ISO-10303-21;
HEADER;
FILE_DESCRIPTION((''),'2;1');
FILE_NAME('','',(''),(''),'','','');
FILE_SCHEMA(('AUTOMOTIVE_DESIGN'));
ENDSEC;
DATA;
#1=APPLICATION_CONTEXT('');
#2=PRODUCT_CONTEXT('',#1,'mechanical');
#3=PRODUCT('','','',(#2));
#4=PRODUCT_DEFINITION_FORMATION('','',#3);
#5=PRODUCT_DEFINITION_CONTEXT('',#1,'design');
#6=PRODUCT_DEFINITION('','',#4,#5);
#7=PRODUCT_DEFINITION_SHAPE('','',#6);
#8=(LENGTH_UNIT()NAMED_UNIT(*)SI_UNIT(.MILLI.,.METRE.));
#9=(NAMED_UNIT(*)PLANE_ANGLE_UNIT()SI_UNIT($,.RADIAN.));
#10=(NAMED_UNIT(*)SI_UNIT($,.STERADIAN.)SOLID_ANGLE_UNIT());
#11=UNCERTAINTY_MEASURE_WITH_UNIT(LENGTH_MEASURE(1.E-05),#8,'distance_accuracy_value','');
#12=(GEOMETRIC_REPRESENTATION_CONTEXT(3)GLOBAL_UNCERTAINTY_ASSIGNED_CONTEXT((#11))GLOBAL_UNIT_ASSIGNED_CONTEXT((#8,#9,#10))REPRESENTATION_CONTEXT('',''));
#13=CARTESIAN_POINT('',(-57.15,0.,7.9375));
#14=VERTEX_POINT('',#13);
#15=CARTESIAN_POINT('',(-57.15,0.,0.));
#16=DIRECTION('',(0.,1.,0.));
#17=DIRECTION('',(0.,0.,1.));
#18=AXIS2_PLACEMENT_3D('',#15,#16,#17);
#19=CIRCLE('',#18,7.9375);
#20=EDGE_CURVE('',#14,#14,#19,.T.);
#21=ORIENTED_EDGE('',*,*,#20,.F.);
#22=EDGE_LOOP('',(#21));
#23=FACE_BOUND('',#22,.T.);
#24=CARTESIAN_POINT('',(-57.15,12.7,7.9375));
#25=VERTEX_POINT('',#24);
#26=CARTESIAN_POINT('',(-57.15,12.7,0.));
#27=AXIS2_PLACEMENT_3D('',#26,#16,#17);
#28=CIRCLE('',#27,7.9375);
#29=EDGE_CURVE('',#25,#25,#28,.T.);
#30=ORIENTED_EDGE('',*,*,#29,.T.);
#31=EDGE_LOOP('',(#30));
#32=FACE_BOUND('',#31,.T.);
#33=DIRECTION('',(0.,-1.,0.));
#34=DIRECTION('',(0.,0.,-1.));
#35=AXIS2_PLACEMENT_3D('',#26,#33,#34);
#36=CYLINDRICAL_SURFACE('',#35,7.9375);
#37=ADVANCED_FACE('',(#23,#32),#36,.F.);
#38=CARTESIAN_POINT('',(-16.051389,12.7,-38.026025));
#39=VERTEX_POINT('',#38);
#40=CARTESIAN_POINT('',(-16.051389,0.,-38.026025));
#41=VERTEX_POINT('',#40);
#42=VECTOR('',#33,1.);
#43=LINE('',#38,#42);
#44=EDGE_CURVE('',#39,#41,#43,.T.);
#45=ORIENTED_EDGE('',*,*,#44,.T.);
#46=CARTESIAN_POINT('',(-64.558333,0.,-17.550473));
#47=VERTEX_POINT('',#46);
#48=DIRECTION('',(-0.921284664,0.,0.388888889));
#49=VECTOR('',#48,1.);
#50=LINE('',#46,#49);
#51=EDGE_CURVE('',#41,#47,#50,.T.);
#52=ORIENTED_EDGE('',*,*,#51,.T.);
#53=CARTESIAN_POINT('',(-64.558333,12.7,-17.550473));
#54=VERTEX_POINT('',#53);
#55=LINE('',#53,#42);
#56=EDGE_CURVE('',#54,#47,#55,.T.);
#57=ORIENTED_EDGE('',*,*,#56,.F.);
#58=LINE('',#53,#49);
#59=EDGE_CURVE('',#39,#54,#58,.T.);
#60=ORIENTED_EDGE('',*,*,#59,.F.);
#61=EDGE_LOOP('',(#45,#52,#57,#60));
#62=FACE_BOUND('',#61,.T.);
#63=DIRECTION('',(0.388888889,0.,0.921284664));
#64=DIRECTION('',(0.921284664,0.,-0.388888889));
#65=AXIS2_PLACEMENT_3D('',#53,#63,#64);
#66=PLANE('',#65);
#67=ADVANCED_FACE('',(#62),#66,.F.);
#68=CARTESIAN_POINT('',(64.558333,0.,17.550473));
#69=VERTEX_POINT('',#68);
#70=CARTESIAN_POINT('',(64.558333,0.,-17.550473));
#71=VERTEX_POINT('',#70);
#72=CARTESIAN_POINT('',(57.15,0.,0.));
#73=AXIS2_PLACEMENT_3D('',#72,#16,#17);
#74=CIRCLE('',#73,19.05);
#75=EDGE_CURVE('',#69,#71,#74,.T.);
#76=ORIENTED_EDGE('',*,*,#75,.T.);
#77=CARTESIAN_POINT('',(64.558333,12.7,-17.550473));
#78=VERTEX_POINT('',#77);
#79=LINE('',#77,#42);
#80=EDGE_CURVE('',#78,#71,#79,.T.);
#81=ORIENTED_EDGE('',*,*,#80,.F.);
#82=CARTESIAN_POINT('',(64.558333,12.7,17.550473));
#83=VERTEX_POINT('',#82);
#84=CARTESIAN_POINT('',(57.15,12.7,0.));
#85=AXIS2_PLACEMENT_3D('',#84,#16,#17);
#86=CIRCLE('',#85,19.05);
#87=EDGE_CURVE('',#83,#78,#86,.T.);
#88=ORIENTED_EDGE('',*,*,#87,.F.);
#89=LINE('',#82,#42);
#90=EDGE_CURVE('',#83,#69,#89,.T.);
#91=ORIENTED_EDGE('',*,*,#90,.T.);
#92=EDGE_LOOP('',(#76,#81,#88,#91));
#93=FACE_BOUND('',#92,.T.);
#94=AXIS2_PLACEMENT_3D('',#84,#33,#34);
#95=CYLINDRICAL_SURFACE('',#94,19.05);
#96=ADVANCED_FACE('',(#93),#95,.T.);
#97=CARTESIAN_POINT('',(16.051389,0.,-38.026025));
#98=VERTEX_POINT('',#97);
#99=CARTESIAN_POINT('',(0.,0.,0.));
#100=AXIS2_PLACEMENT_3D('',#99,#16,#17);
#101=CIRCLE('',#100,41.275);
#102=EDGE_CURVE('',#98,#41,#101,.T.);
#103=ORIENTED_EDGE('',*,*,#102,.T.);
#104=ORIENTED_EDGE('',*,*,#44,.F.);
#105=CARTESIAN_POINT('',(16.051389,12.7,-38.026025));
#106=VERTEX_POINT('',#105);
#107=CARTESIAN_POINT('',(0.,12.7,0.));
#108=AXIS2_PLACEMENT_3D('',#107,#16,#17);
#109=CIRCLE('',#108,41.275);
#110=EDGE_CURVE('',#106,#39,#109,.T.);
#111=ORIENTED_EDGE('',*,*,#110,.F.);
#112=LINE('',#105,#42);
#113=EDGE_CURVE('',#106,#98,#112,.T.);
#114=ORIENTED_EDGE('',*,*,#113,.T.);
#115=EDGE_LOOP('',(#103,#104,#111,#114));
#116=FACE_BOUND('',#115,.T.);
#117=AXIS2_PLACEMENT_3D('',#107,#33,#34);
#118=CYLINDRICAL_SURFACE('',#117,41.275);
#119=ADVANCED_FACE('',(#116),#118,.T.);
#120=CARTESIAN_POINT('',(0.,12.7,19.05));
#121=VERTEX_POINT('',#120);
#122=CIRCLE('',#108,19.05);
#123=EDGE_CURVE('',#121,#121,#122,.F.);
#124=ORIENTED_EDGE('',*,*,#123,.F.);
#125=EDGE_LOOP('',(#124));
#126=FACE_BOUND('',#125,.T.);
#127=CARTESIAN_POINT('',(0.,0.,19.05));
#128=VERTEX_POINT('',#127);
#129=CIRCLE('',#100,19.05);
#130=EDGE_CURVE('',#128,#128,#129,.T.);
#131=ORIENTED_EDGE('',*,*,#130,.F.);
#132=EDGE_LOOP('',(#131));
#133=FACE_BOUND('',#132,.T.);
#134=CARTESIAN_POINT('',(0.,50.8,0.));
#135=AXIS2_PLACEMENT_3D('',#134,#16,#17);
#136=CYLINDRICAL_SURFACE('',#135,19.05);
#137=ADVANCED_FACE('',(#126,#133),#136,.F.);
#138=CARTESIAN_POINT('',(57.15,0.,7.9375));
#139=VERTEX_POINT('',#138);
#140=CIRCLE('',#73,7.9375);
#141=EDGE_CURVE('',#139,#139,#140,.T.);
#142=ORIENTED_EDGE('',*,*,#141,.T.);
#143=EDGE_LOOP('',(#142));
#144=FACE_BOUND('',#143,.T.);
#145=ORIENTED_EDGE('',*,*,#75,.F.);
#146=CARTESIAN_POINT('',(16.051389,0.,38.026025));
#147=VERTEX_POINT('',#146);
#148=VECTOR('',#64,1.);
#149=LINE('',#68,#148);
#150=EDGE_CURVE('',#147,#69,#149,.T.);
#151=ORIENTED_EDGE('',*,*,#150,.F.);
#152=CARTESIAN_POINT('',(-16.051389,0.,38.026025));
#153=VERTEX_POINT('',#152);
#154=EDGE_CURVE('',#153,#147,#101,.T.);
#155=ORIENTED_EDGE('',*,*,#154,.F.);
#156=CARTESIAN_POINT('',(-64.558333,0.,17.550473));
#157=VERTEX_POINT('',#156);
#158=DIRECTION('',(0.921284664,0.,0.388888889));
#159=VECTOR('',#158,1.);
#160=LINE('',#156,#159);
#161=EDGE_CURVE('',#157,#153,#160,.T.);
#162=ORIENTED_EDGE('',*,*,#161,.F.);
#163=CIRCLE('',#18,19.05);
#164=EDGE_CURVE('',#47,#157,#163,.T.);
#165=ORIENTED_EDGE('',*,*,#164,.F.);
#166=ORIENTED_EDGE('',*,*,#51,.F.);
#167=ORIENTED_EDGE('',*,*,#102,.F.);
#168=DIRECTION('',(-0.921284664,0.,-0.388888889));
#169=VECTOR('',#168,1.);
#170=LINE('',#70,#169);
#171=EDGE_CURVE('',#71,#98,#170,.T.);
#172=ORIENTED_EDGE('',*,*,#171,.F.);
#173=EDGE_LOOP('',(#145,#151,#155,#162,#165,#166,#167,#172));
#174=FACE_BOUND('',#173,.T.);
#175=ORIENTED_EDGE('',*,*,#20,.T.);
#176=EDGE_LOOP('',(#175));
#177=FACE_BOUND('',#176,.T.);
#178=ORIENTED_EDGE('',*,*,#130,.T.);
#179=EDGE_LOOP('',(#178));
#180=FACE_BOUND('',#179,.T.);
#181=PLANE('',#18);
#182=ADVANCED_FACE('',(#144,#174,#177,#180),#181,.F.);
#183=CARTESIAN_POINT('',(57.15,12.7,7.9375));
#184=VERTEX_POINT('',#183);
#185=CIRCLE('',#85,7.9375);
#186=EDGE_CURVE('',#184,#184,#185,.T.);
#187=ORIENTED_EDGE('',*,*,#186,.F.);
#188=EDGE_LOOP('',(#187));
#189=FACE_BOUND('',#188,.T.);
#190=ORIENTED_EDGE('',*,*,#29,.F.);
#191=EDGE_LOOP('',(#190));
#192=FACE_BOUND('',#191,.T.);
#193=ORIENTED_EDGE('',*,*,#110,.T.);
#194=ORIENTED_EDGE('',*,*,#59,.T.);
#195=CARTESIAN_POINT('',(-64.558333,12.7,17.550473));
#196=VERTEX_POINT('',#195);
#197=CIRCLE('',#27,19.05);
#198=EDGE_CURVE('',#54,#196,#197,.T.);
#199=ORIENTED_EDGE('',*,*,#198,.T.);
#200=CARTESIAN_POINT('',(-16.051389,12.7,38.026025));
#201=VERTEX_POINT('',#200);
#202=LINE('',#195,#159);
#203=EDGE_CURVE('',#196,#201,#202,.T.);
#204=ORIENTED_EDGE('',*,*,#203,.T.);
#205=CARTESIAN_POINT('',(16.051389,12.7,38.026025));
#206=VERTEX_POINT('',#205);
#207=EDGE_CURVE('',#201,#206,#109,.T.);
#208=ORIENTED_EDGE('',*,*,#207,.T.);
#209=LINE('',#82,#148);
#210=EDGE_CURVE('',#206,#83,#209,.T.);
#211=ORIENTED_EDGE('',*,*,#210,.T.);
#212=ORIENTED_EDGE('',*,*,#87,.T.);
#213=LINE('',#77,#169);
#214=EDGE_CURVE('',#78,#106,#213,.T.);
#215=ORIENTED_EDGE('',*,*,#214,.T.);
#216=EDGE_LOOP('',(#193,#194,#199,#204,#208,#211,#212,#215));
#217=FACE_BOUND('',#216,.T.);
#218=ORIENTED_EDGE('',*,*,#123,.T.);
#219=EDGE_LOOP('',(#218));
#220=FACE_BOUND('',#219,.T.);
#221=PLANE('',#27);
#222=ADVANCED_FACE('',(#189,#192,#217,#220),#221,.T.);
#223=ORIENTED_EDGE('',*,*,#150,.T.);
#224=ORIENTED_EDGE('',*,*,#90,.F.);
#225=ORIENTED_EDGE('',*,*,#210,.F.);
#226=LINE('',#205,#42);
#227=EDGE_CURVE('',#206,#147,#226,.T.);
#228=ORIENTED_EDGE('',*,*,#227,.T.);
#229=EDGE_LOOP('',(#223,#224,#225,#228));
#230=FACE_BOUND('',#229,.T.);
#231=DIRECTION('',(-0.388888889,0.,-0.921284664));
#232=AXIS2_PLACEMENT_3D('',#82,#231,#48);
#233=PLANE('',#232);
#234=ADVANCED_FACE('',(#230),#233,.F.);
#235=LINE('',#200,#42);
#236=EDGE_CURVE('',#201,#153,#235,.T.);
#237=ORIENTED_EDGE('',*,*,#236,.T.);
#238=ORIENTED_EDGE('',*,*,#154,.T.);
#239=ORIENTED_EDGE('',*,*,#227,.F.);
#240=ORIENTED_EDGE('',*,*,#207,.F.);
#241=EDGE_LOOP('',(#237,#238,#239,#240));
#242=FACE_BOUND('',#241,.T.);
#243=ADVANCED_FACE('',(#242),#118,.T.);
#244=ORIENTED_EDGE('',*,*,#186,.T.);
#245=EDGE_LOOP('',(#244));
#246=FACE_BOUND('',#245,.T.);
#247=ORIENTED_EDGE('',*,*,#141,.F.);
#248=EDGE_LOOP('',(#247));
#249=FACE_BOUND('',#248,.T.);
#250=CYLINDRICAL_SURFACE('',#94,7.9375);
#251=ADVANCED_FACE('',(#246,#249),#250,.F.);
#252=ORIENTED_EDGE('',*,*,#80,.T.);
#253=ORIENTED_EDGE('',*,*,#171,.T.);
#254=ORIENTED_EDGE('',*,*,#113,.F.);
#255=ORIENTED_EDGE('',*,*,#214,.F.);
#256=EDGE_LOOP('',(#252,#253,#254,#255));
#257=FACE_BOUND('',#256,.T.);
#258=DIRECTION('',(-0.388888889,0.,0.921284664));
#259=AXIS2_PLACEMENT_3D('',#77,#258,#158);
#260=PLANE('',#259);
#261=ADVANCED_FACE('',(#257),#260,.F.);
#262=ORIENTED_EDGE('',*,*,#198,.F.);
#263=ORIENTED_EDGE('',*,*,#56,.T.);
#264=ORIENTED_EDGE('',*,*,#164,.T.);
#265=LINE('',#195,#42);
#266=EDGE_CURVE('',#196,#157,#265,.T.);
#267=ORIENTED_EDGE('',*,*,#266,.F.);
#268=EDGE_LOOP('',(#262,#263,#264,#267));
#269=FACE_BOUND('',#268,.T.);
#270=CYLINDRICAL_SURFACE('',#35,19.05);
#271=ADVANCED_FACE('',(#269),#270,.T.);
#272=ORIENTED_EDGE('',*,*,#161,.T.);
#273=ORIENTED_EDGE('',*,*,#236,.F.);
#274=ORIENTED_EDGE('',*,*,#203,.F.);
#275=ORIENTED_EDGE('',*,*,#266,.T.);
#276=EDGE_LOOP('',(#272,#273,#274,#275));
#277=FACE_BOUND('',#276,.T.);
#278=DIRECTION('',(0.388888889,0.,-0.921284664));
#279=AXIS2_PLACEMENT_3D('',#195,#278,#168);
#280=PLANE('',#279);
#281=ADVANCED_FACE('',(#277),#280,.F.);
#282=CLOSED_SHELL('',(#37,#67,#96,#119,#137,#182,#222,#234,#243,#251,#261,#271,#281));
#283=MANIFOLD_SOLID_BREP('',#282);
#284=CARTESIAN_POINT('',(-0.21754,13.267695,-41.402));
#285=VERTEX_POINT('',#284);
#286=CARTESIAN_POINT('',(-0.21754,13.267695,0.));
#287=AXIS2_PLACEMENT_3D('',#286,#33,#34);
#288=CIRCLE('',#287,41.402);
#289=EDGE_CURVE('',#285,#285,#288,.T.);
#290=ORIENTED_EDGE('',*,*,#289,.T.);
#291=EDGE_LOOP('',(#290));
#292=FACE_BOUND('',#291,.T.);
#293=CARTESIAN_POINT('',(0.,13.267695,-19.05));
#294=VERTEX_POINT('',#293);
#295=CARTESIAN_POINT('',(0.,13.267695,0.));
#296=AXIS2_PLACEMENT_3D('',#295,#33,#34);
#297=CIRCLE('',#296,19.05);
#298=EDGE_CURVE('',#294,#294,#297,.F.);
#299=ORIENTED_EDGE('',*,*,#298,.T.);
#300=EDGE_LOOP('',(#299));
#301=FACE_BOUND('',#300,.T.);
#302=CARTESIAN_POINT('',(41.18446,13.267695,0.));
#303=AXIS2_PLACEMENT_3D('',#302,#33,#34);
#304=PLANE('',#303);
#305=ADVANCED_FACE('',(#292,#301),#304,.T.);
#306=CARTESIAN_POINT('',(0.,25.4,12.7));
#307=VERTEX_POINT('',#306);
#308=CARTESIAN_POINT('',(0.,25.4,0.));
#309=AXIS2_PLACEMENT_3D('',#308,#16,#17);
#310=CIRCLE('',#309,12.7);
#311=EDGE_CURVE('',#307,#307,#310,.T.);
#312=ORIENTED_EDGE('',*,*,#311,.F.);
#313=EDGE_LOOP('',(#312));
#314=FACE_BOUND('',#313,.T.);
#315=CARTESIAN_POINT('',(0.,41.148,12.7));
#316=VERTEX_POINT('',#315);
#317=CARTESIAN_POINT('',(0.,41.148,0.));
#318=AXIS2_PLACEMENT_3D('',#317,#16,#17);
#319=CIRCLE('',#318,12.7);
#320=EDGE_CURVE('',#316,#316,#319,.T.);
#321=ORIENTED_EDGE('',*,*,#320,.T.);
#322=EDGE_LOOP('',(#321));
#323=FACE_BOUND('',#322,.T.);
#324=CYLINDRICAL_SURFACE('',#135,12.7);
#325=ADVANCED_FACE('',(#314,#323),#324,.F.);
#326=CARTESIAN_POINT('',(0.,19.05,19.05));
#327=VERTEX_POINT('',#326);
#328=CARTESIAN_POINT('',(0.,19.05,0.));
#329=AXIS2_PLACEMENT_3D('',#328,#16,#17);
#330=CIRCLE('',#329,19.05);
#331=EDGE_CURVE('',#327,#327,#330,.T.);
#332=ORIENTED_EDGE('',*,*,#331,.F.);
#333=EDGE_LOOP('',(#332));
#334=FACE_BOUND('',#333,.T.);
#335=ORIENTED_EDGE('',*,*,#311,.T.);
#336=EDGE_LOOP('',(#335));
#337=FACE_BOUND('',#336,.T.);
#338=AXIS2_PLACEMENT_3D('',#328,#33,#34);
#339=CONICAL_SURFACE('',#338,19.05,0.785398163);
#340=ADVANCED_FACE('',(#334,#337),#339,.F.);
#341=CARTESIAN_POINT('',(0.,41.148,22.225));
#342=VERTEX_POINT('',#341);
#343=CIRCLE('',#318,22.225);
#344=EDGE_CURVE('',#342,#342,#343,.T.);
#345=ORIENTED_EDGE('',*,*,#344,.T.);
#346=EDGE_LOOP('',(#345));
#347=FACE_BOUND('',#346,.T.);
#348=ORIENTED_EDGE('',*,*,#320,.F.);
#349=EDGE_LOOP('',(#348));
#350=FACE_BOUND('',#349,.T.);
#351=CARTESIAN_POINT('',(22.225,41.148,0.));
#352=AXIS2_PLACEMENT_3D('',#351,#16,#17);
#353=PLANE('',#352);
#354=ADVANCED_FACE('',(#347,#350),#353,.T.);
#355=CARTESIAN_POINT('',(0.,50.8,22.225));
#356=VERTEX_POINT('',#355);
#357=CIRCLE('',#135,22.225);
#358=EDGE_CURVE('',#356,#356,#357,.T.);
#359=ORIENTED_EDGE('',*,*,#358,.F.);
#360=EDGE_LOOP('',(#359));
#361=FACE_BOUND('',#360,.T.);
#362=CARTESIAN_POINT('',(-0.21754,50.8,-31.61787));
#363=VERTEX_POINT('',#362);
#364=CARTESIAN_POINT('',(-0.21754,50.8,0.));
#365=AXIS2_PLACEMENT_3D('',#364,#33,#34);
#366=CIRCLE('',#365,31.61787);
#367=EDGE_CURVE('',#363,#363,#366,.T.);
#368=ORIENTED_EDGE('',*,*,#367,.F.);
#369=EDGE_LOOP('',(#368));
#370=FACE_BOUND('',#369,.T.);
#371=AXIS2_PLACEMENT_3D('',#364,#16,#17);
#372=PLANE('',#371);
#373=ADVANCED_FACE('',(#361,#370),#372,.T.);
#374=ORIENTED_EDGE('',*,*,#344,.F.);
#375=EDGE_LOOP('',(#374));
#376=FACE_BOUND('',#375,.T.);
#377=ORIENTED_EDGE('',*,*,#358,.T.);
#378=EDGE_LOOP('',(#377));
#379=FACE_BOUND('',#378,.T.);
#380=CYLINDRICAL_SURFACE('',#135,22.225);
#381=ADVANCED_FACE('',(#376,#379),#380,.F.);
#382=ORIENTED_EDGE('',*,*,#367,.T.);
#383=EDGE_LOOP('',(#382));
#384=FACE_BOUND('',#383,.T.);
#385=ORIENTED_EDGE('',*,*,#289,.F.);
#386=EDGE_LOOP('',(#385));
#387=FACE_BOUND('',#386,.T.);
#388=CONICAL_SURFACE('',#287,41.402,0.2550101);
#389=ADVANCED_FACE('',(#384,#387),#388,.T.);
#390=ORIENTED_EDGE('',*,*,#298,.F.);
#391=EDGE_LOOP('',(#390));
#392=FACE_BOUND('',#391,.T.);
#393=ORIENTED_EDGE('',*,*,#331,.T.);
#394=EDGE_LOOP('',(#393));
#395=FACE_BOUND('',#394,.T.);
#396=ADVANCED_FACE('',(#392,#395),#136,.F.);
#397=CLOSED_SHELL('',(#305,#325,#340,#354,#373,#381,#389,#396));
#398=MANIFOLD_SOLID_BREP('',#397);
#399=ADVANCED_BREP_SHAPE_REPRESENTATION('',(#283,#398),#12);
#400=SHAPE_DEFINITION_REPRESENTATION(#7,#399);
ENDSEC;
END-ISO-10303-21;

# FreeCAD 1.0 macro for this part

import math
import FreeCAD as App
import Part
import Sketcher
Q = App.Units.Quantity

doc = App.newDocument("Part")
body = doc.addObject("PartDesign::Body", "Body")

sketch1 = doc.addObject("Sketcher::SketchObject", "Sketch")
body.addObject(sketch1)
sketch1.AttachmentSupport = (doc.XZ_Plane, [""])
sketch1.MapMode = "FlatFace"
sketch1.addGeometry(Part.LineSegment(App.Vector(-16, -38, 0), App.Vector(-65, -18, 0)), False)
sketch1.addGeometry(Part.ArcOfCircle(Part.Circle(App.Vector(-57, 0, 0), App.Vector(0, 0, 1), 19), math.radians(113), math.radians(247)), False)
sketch1.addGeometry(Part.LineSegment(App.Vector(-65, 18, 0), App.Vector(-16, 38, 0)), False)
sketch1.addGeometry(Part.ArcOfCircle(Part.Circle(App.Vector(0, 0, 0), App.Vector(0, 0, 1), 41), math.radians(67), math.radians(113)), False)
sketch1.addGeometry(Part.LineSegment(App.Vector(16, 38, 0), App.Vector(65, 18, 0)), False)
sketch1.addGeometry(Part.ArcOfCircle(Part.Circle(App.Vector(57, 0, 0), App.Vector(0, 0, 1), 19), math.radians(-67), math.radians(67)), False)
sketch1.addGeometry(Part.LineSegment(App.Vector(65, -18, 0), App.Vector(16, -38, 0)), False)
sketch1.addGeometry(Part.ArcOfCircle(Part.Circle(App.Vector(0, 0, 0), App.Vector(0, 0, 1), 41), math.radians(-113), math.radians(-67)), False)
sketch1.addGeometry(Part.Circle(App.Vector(57, 0, 0), App.Vector(0, 0, 1), 8), False)
sketch1.addGeometry(Part.Circle(App.Vector(-57, 0, 0), App.Vector(0, 0, 1), 8), False)
sketch1.addConstraint(Sketcher.Constraint("Tangent", 0, 2, 1, 2))
sketch1.addConstraint(Sketcher.Constraint("Tangent", 1, 1, 2, 1))
sketch1.addConstraint(Sketcher.Constraint("Tangent", 2, 2, 3, 2))
sketch1.addConstraint(Sketcher.Constraint("Tangent", 3, 1, 4, 1))
sketch1.addConstraint(Sketcher.Constraint("Tangent", 4, 2, 5, 2))
sketch1.addConstraint(Sketcher.Constraint("Tangent", 5, 1, 6, 1))
sketch1.addConstraint(Sketcher.Constraint("Tangent", 6, 2, 7, 2))
sketch1.addConstraint(Sketcher.Constraint("Tangent", 7, 1, 0, 1))
sketch1.addConstraint(Sketcher.Constraint("Coincident", 3, 3, -1, 1))
sketch1.addConstraint(Sketcher.Constraint("Coincident", 7, 3, -1, 1))
sketch1.addConstraint(Sketcher.Constraint("Coincident", 8, 3, 5, 3))
sketch1.addConstraint(Sketcher.Constraint("Coincident", 9, 3, 1, 3))
sketch1.addConstraint(Sketcher.Constraint("Equal", 1, 5))
sketch1.addConstraint(Sketcher.Constraint("Equal", 3, 7))
sketch1.addConstraint(Sketcher.Constraint("Equal", 8, 9))
sketch1.addConstraint(Sketcher.Constraint("Symmetric", 1, 3, 5, 3, -1, 1))
sketch1.addConstraint(Sketcher.Constraint("PointOnObject", 1, 3, -1))
sketch1.addConstraint(Sketcher.Constraint("Radius", 1, Q("0.75 in")))
sketch1.addConstraint(Sketcher.Constraint("Diameter", 8, Q("0.625 in")))
sketch1.addConstraint(Sketcher.Constraint("Radius", 3, Q("1.625 in")))
sketch1.addConstraint(Sketcher.Constraint("DistanceX", 1, 3, 5, 3, Q("4.5 in")))
pad1 = doc.addObject("PartDesign::Pad", "Pad")
body.addObject(pad1)
pad1.Profile = sketch1
pad1.Length = Q("0.5 in")
pad1.Reversed = True
body2 = doc.addObject("PartDesign::Body", "Body001")

sketch2 = doc.addObject("Sketcher::SketchObject", "Sketch001")
body2.addObject(sketch2)
sketch2.AttachmentSupport = (doc.getObject("XY_Plane001"), [""])
sketch2.MapMode = "FlatFace"
sketch2.addGeometry(Part.LineSegment(App.Vector(0, 51, 0), App.Vector(0, 13, 0)), False)
sketch2.addGeometry(Part.LineSegment(App.Vector(0, 13, 0), App.Vector(41, 13, 0)), False)
sketch2.addGeometry(Part.LineSegment(App.Vector(41, 13, 0), App.Vector(31, 51, 0)), False)
sketch2.addGeometry(Part.LineSegment(App.Vector(31, 51, 0), App.Vector(0, 51, 0)), False)
sketch2.addGeometry(Part.LineSegment(App.Vector(0, 13, 0), App.Vector(0, 51, 0)), True)
sketch2.addConstraint(Sketcher.Constraint("Coincident", 0, 2, 1, 1))
sketch2.addConstraint(Sketcher.Constraint("Coincident", 1, 2, 2, 1))
sketch2.addConstraint(Sketcher.Constraint("Coincident", 2, 2, 3, 1))
sketch2.addConstraint(Sketcher.Constraint("Coincident", 3, 2, 0, 1))
sketch2.addConstraint(Sketcher.Constraint("Vertical", 0))
sketch2.addConstraint(Sketcher.Constraint("Horizontal", 1))
sketch2.addConstraint(Sketcher.Constraint("Horizontal", 3))
sketch2.addConstraint(Sketcher.Constraint("Vertical", 4))
sketch2.addConstraint(Sketcher.Constraint("Coincident", 4, 1, 0, 2))
sketch2.addConstraint(Sketcher.Constraint("Horizontal", 2, 2, 4, 2))
sketch2.addConstraint(Sketcher.Constraint("DistanceY", -1, 1, 2, 2, Q("2 in")))
sketch2.addConstraint(Sketcher.Constraint("DistanceX", 1, 1, 1, 2, Q("1.63 in")))
sketch2.addConstraint(Sketcher.Constraint("DistanceX", 3, 2, 3, 1, 31.61787))
sketch2.addConstraint(Sketcher.Constraint("DistanceY", 0, 2, 0, 1, 37.532305))
sketch2.addConstraint(Sketcher.Constraint("DistanceX", 0, 2, -1, 1, 0.21754))
revolution = doc.addObject("PartDesign::Revolution", "Revolution")
body2.addObject(revolution)
revolution.Profile = sketch2
revolution.ReferenceAxis = (sketch2, ["Axis0"])
revolution.Angle = 360
body3 = doc.addObject("PartDesign::Body", "Body002")

sketch3 = doc.addObject("Sketcher::SketchObject", "Sketch002")
body3.addObject(sketch3)
sketch3.AttachmentSupport = (doc.getObject("XY_Plane002"), [""])
sketch3.MapMode = "FlatFace"
sketch3.addGeometry(Part.LineSegment(App.Vector(22, 51, 0), App.Vector(0, 51, 0)), False)
sketch3.addGeometry(Part.LineSegment(App.Vector(0, 51, 0), App.Vector(0, 0, 0)), False)
sketch3.addGeometry(Part.LineSegment(App.Vector(0, 0, 0), App.Vector(19, 0, 0)), False)
sketch3.addGeometry(Part.LineSegment(App.Vector(19, 0, 0), App.Vector(19, 19, 0)), False)
sketch3.addGeometry(Part.LineSegment(App.Vector(19, 19, 0), App.Vector(13, 25, 0)), False)
sketch3.addGeometry(Part.LineSegment(App.Vector(13, 25, 0), App.Vector(13, 41, 0)), False)
sketch3.addGeometry(Part.LineSegment(App.Vector(13, 41, 0), App.Vector(22, 41, 0)), False)
sketch3.addGeometry(Part.LineSegment(App.Vector(22, 41, 0), App.Vector(22, 51, 0)), False)
sketch3.addConstraint(Sketcher.Constraint("Coincident", 0, 2, 1, 1))
sketch3.addConstraint(Sketcher.Constraint("Coincident", 1, 2, 2, 1))
sketch3.addConstraint(Sketcher.Constraint("Coincident", 2, 2, 3, 1))
sketch3.addConstraint(Sketcher.Constraint("Coincident", 3, 2, 4, 1))
sketch3.addConstraint(Sketcher.Constraint("Coincident", 4, 2, 5, 1))
sketch3.addConstraint(Sketcher.Constraint("Coincident", 5, 2, 6, 1))
sketch3.addConstraint(Sketcher.Constraint("Coincident", 6, 2, 7, 1))
sketch3.addConstraint(Sketcher.Constraint("Coincident", 7, 2, 0, 1))
sketch3.addConstraint(Sketcher.Constraint("Horizontal", 0))
sketch3.addConstraint(Sketcher.Constraint("Vertical", 1))
sketch3.addConstraint(Sketcher.Constraint("Horizontal", 2))
sketch3.addConstraint(Sketcher.Constraint("Vertical", 3))
sketch3.addConstraint(Sketcher.Constraint("Vertical", 5))
sketch3.addConstraint(Sketcher.Constraint("Horizontal", 6))
sketch3.addConstraint(Sketcher.Constraint("Vertical", 7))
sketch3.addConstraint(Sketcher.Constraint("Coincident", 1, 2, -1, 1))
sketch3.addConstraint(Sketcher.Constraint("Equal", 2, 3))
sketch3.addConstraint(Sketcher.Constraint("DistanceY", 1, 2, 1, 1, Q("2 in")))
sketch3.addConstraint(Sketcher.Constraint("DistanceY", -1, 1, 4, 2, Q("1 in")))
sketch3.addConstraint(Sketcher.Constraint("Angle", 4, Q("135 deg")))
sketch3.addConstraint(Sketcher.Constraint("DistanceX", 2, 1, 2, 2, Q("0.75 in")))
sketch3.addConstraint(Sketcher.Constraint("DistanceY", 5, 1, 5, 2, Q("0.62 in")))
sketch3.addConstraint(Sketcher.Constraint("DistanceX", 0, 2, 0, 1, Q("0.875 in")))
revolution2 = doc.addObject("PartDesign::Revolution", "Revolution001")
body3.addObject(revolution2)
revolution2.Profile = sketch3
revolution2.ReferenceAxis = (sketch3, ["V_Axis"])
revolution2.Angle = 360
doc.recompute()

body4 = doc.addObject("PartDesign::Body", "Body003")
body4.BaseFeature = body3
boolean = doc.addObject("PartDesign::Boolean", "Boolean")
body.addObject(boolean)
boolean.Type = "Cut"
boolean.addObjects([body4])
doc.recompute()

boolean2 = doc.addObject("PartDesign::Boolean", "Boolean001")
body2.addObject(boolean2)
boolean2.Type = "Cut"
boolean2.addObjects([body3])

doc.recompute()
